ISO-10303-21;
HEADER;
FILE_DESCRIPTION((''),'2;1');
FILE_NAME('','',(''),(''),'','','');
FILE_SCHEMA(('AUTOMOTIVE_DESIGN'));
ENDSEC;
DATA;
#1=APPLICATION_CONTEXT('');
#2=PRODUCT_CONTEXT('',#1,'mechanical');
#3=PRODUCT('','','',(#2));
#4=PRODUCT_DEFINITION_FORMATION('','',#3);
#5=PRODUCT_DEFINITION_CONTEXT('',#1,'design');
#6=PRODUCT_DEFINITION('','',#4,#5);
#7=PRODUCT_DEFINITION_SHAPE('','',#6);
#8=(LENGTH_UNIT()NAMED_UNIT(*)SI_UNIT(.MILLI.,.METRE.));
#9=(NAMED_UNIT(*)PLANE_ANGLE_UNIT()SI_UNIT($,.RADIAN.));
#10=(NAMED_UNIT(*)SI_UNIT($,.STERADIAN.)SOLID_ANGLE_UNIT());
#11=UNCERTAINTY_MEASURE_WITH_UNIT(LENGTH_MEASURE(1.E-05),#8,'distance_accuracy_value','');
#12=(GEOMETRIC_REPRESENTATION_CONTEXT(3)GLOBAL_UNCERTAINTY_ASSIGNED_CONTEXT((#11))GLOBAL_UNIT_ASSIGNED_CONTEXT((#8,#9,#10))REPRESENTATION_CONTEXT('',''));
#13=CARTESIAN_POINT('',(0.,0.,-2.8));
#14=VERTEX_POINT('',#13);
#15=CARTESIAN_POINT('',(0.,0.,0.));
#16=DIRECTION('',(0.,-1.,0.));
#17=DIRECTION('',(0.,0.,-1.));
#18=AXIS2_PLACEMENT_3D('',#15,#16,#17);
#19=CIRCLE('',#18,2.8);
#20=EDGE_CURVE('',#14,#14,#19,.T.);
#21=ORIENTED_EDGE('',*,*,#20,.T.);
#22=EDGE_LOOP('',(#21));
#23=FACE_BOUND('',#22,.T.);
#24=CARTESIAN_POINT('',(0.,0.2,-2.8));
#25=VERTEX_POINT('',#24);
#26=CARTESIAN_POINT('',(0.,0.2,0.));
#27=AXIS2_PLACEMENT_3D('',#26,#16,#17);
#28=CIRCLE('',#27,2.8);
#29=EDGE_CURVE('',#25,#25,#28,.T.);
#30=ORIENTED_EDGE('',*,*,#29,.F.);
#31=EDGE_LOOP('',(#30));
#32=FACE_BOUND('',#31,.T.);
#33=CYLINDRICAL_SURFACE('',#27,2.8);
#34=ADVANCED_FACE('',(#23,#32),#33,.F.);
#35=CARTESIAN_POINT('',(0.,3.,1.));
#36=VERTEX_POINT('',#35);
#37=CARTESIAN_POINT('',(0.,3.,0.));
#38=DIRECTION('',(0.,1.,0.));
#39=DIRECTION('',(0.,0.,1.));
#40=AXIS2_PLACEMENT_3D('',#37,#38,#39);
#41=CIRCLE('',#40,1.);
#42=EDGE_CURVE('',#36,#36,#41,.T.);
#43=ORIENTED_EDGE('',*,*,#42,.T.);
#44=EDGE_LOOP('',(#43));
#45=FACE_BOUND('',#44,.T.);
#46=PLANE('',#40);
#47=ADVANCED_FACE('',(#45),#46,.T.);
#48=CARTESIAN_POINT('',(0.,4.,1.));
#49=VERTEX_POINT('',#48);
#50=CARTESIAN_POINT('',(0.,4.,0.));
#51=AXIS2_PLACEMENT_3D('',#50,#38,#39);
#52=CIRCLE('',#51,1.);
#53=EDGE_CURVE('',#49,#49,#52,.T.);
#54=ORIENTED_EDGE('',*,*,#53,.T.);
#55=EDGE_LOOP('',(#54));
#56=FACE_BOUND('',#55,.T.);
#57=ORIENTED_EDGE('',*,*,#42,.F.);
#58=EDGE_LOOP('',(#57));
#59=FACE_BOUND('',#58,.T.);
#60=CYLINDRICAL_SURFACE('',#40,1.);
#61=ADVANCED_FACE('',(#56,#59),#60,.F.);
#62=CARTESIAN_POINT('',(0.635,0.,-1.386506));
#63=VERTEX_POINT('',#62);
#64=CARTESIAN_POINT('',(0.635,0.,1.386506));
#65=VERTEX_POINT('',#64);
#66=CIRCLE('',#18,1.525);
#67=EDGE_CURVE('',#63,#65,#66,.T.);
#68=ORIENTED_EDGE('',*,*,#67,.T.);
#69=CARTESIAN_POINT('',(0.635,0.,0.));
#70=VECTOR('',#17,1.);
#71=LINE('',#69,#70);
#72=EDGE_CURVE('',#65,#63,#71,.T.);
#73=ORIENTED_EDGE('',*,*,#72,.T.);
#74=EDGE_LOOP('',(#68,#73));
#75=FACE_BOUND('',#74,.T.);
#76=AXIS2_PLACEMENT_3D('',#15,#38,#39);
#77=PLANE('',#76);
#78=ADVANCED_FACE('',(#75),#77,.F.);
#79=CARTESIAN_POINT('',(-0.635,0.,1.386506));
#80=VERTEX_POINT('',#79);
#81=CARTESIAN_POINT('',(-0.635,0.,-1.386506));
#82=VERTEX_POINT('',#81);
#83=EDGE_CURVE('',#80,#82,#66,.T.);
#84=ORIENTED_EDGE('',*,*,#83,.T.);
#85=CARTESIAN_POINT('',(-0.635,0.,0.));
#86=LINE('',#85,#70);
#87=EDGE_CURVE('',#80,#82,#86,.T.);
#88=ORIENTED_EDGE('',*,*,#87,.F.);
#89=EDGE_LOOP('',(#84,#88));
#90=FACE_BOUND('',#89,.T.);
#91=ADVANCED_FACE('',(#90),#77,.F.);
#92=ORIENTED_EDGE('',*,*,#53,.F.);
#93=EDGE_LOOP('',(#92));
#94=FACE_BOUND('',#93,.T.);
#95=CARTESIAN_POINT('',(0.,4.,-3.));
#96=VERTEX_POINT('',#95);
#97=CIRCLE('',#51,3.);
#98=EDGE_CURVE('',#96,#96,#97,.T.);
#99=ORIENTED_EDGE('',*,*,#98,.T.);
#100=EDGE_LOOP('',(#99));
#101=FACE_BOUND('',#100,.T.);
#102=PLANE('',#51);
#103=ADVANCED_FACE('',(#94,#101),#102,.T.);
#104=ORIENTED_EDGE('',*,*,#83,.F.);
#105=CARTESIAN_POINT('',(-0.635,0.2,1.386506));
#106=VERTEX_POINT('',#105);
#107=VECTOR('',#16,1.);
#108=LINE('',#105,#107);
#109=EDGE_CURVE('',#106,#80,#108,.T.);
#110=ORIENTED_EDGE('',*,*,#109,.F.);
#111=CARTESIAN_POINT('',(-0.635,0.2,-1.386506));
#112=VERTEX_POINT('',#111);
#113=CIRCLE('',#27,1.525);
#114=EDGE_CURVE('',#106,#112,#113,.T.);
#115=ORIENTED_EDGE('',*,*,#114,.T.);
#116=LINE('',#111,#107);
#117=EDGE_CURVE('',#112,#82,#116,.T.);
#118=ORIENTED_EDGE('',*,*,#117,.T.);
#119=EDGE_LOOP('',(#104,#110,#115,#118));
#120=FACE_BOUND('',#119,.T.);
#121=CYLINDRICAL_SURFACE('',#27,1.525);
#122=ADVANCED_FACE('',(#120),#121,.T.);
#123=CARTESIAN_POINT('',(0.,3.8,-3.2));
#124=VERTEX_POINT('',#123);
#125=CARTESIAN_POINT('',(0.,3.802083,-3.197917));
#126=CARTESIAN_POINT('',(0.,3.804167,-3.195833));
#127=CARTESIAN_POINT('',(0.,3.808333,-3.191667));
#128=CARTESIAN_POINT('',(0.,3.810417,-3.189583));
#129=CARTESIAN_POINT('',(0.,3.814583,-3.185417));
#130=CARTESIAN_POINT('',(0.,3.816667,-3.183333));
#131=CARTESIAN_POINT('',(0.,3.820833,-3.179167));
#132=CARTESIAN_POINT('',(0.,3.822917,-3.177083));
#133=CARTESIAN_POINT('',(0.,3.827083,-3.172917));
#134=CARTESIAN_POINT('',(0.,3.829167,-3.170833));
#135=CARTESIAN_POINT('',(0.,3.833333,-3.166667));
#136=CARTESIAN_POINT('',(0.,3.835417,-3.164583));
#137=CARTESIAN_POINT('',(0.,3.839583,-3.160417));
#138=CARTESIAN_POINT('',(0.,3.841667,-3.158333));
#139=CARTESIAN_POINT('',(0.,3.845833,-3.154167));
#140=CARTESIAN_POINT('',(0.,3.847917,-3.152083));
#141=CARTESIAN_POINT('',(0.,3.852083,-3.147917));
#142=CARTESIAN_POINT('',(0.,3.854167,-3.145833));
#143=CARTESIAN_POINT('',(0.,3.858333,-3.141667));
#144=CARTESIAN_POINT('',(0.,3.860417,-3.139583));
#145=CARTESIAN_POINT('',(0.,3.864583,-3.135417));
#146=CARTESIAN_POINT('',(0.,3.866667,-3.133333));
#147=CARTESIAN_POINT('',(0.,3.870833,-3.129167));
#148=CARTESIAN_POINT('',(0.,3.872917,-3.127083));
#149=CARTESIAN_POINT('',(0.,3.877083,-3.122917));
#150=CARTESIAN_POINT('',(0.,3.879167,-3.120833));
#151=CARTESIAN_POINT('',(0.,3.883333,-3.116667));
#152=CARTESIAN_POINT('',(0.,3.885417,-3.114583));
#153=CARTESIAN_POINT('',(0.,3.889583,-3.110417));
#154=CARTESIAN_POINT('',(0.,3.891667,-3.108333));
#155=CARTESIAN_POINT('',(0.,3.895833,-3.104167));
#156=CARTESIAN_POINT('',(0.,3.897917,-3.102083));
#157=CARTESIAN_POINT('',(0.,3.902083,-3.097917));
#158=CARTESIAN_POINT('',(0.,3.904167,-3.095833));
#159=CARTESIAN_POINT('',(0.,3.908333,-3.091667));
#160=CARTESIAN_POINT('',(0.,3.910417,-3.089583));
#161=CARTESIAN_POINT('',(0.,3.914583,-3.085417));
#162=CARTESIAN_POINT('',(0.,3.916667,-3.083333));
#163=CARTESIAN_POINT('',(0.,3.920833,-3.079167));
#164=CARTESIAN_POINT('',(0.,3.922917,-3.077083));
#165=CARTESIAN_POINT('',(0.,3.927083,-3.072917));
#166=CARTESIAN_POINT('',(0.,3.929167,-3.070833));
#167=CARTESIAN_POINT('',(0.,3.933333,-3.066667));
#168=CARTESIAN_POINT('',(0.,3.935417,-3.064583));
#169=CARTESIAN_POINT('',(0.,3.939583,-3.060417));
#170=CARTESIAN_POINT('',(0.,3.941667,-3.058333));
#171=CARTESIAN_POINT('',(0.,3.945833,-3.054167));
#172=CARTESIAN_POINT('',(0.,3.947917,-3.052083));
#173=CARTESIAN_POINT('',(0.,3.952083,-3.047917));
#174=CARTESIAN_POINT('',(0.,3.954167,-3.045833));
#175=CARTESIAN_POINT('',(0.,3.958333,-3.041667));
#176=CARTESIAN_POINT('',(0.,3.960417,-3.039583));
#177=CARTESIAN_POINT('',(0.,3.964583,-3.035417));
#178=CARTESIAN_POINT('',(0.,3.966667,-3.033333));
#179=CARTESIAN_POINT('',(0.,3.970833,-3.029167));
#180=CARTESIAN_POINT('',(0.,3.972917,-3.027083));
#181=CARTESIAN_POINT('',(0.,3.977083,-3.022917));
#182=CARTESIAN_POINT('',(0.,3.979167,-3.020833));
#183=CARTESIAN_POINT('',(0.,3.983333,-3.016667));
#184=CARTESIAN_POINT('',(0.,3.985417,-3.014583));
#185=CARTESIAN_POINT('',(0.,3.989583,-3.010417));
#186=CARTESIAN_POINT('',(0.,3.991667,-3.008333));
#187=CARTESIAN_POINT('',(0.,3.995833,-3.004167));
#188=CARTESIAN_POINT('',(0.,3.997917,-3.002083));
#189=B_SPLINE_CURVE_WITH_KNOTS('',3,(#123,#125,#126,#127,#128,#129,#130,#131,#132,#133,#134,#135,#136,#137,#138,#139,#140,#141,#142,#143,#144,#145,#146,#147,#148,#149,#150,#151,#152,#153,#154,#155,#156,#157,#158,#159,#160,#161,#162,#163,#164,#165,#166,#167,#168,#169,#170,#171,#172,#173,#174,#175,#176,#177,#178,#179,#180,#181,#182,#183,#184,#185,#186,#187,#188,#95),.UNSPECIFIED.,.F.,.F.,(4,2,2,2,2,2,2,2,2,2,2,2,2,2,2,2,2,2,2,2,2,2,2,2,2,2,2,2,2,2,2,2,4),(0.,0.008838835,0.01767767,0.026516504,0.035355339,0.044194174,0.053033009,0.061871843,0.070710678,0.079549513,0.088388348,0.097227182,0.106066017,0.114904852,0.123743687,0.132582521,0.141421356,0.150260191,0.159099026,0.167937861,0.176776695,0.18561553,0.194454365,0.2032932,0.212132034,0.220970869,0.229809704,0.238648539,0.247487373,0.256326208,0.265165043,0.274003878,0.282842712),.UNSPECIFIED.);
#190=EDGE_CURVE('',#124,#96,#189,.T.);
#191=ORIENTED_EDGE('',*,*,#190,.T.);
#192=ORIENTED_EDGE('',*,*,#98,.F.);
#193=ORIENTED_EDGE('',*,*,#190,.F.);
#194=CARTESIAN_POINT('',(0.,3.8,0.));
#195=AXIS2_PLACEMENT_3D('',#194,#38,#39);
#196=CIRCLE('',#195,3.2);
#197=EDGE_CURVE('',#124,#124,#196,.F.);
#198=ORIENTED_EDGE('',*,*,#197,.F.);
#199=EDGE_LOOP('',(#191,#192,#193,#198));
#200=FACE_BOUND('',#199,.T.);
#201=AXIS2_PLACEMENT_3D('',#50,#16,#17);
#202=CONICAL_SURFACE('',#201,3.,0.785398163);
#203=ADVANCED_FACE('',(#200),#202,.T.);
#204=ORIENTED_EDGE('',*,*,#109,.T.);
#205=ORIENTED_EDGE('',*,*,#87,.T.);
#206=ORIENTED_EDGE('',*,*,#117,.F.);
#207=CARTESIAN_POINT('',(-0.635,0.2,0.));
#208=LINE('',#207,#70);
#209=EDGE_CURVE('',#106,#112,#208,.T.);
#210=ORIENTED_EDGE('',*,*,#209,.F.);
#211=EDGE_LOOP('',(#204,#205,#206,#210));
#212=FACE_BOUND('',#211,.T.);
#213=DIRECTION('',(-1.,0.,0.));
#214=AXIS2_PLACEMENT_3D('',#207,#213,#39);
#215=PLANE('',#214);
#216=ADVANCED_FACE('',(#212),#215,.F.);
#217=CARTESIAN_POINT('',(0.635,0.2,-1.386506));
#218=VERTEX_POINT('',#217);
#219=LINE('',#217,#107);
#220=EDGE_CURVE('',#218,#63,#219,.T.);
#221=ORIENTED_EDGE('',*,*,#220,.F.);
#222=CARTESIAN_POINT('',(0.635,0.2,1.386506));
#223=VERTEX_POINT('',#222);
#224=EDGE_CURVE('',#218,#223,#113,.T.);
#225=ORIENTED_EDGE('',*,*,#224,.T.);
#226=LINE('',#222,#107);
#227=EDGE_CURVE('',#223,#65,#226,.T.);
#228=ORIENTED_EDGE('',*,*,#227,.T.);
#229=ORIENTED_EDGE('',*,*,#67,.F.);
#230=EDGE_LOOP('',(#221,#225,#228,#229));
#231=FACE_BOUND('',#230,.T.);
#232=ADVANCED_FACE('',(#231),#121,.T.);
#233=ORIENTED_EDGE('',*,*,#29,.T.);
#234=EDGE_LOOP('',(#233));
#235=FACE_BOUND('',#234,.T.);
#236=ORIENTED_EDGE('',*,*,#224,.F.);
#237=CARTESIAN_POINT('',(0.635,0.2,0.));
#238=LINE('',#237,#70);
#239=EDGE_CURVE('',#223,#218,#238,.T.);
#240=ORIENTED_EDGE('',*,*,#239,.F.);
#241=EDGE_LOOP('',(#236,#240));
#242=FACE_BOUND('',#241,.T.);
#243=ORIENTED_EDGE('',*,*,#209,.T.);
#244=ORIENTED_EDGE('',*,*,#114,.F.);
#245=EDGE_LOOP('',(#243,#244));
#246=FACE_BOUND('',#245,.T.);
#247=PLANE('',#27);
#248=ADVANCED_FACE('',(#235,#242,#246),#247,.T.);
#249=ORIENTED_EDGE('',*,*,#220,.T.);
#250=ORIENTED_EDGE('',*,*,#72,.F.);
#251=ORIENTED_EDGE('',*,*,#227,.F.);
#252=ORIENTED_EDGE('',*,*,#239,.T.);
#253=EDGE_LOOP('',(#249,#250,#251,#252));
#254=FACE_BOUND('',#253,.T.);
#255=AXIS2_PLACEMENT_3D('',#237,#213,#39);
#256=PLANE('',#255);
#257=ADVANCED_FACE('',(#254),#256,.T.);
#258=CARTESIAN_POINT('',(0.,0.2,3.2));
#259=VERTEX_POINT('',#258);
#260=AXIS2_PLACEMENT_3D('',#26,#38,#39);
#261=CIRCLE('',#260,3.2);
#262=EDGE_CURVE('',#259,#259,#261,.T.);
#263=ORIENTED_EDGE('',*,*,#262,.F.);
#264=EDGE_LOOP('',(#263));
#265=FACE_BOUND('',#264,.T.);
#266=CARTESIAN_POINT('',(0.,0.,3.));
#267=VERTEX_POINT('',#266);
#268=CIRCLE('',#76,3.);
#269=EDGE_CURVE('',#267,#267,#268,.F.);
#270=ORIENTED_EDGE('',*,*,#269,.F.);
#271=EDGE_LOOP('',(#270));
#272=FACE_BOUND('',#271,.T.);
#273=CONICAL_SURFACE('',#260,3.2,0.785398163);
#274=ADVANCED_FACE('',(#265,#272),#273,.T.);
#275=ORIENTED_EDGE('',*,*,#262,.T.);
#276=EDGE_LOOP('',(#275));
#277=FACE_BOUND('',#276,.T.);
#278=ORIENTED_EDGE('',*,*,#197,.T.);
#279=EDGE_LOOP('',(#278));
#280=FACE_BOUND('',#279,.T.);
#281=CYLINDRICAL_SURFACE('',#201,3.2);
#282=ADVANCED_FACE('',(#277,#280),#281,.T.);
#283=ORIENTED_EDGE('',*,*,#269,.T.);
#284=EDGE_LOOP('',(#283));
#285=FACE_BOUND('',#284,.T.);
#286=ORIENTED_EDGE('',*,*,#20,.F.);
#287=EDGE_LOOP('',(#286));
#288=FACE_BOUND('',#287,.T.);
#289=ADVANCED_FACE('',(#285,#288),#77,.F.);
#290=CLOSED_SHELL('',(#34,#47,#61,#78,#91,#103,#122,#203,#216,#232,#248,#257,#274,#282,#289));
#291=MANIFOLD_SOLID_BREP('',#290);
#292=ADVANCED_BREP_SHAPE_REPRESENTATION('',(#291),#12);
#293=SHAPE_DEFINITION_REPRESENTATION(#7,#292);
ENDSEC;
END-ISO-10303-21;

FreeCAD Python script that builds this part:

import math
import FreeCAD as App
import Part
import Sketcher
from FreeCAD import Vector


def edges_at(feature, points):
    """Names of the edges that pass closest to the given points."""
    edges = feature.Shape.Edges
    near = lambda p: min(range(len(edges)), key=lambda i: edges[i].distToShape(Part.Vertex(*p))[0])
    return sorted({f"Edge{near(p) + 1}" for p in points})

doc = App.newDocument("Part")
body = doc.addObject("PartDesign::Body", "Body")

sketch1 = doc.addObject("Sketcher::SketchObject", "Sketch")
body.addObject(sketch1)
sketch1.AttachmentSupport = (doc.XZ_Plane, [""])
sketch1.MapMode = "FlatFace"
sketch1.addGeometry(Part.Circle(Vector(0, 0, 0), Vector(0, 0, 1), 3.2), False)
sketch1.addConstraint(Sketcher.Constraint("Coincident", 0, 3, -1, 1))
sketch1.addConstraint(Sketcher.Constraint("Diameter", 0, 6.4))
pad1 = doc.addObject("PartDesign::Pad", "Pad")
body.addObject(pad1)
pad1.Profile = sketch1
pad1.Length = 4
pad1.Reversed = True
doc.recompute()

chamfer = doc.addObject("PartDesign::Chamfer", "Chamfer")
body.addObject(chamfer)
chamfer.Base = (pad1, edges_at(pad1, [(0, 0, -3.2), (0, 4, -3.2)]))
chamfer.Size = 0.2

sketch2 = doc.addObject("Sketcher::SketchObject", "Sketch001")
body.addObject(sketch2)
sketch2.AttachmentSupport = (doc.XZ_Plane, [""])
sketch2.MapMode = "FlatFace"
sketch2.AttachmentOffset = App.Placement(Vector(0, 0, -4), App.Rotation())
sketch2.addGeometry(Part.Circle(Vector(0, 0, 0), Vector(0, 0, 1), 1), False)
sketch2.addConstraint(Sketcher.Constraint("Coincident", 0, 3, -1, 1))
sketch2.addConstraint(Sketcher.Constraint("Diameter", 0, 2.0))
pocket1 = doc.addObject("PartDesign::Pocket", "Pocket")
body.addObject(pocket1)
pocket1.Profile = sketch2
pocket1.Length = 1
pocket1.Reversed = True

sketch3 = doc.addObject("Sketcher::SketchObject", "Sketch002")
body.addObject(sketch3)
sketch3.AttachmentSupport = (doc.XZ_Plane, [""])
sketch3.MapMode = "FlatFace"
sketch3.addGeometry(Part.ArcOfCircle(Part.Circle(Vector(0, 0, 0), Vector(0, 0, 1), 2.8), math.radians(0), math.radians(90)), False)
sketch3.addGeometry(Part.ArcOfCircle(Part.Circle(Vector(0, 0, 0), Vector(0, 0, 1), 2.8), math.radians(90), math.radians(270)), False)
sketch3.addGeometry(Part.ArcOfCircle(Part.Circle(Vector(0, 0, 0), Vector(0, 0, 1), 2.8), math.radians(-90), math.radians(0)), False)
sketch3.addGeometry(Part.LineSegment(Vector(-0.635, 1.386506, 0), Vector(-0.635, -1.386506, 0)), False)
sketch3.addGeometry(Part.ArcOfCircle(Part.Circle(Vector(0, 0, 0), Vector(0, 0, 1), 1.525), math.radians(114.607099), math.radians(245.392901)), False)
sketch3.addGeometry(Part.ArcOfCircle(Part.Circle(Vector(0, 0, 0), Vector(0, 0, 1), 1.525), math.radians(-65.392901), math.radians(0)), False)
sketch3.addGeometry(Part.LineSegment(Vector(0.635, -1.386506, 0), Vector(0.635, 1.386506, 0)), False)
sketch3.addGeometry(Part.ArcOfCircle(Part.Circle(Vector(0, 0, 0), Vector(0, 0, 1), 1.525), math.radians(0), math.radians(65.392901)), False)
sketch3.addConstraint(Sketcher.Constraint("Tangent", 0, 2, 1, 1))
sketch3.addConstraint(Sketcher.Constraint("Tangent", 1, 2, 2, 1))
sketch3.addConstraint(Sketcher.Constraint("Tangent", 2, 2, 0, 1))
sketch3.addConstraint(Sketcher.Constraint("Coincident", 3, 1, 4, 1))
sketch3.addConstraint(Sketcher.Constraint("Coincident", 4, 2, 3, 2))
sketch3.addConstraint(Sketcher.Constraint("Coincident", 5, 1, 6, 1))
sketch3.addConstraint(Sketcher.Constraint("Coincident", 6, 2, 7, 2))
sketch3.addConstraint(Sketcher.Constraint("Tangent", 7, 1, 5, 2))
sketch3.addConstraint(Sketcher.Constraint("Vertical", 3))
sketch3.addConstraint(Sketcher.Constraint("Vertical", 6))
sketch3.addConstraint(Sketcher.Constraint("Coincident", 0, 3, -1, 1))
sketch3.addConstraint(Sketcher.Constraint("Coincident", 4, 3, -1, 1))
sketch3.addConstraint(Sketcher.Constraint("Coincident", 5, 3, -1, 1))
sketch3.addConstraint(Sketcher.Constraint("Equal", 4, 5))
sketch3.addConstraint(Sketcher.Constraint("Equal", 5, 7))
sketch3.addConstraint(Sketcher.Constraint("PointOnObject", 0, 2, -2))
sketch3.addConstraint(Sketcher.Constraint("PointOnObject", 1, 2, -2))
sketch3.addConstraint(Sketcher.Constraint("PointOnObject", 2, 2, -1))
sketch3.addConstraint(Sketcher.Constraint("PointOnObject", 7, 1, -1))
sketch3.addConstraint(Sketcher.Constraint("Horizontal", 4, 2, 5, 1))
sketch3.addConstraint(Sketcher.Constraint("Radius", 0, 2.8))
sketch3.addConstraint(Sketcher.Constraint("Radius", 4, 1.525))
sketch3.addConstraint(Sketcher.Constraint("DistanceX", 4, 2, 5, 1, 1.27))
pocket2 = doc.addObject("PartDesign::Pocket", "Pocket001")
body.addObject(pocket2)
pocket2.Profile = sketch3
pocket2.Length = 0.2

doc.recompute()
